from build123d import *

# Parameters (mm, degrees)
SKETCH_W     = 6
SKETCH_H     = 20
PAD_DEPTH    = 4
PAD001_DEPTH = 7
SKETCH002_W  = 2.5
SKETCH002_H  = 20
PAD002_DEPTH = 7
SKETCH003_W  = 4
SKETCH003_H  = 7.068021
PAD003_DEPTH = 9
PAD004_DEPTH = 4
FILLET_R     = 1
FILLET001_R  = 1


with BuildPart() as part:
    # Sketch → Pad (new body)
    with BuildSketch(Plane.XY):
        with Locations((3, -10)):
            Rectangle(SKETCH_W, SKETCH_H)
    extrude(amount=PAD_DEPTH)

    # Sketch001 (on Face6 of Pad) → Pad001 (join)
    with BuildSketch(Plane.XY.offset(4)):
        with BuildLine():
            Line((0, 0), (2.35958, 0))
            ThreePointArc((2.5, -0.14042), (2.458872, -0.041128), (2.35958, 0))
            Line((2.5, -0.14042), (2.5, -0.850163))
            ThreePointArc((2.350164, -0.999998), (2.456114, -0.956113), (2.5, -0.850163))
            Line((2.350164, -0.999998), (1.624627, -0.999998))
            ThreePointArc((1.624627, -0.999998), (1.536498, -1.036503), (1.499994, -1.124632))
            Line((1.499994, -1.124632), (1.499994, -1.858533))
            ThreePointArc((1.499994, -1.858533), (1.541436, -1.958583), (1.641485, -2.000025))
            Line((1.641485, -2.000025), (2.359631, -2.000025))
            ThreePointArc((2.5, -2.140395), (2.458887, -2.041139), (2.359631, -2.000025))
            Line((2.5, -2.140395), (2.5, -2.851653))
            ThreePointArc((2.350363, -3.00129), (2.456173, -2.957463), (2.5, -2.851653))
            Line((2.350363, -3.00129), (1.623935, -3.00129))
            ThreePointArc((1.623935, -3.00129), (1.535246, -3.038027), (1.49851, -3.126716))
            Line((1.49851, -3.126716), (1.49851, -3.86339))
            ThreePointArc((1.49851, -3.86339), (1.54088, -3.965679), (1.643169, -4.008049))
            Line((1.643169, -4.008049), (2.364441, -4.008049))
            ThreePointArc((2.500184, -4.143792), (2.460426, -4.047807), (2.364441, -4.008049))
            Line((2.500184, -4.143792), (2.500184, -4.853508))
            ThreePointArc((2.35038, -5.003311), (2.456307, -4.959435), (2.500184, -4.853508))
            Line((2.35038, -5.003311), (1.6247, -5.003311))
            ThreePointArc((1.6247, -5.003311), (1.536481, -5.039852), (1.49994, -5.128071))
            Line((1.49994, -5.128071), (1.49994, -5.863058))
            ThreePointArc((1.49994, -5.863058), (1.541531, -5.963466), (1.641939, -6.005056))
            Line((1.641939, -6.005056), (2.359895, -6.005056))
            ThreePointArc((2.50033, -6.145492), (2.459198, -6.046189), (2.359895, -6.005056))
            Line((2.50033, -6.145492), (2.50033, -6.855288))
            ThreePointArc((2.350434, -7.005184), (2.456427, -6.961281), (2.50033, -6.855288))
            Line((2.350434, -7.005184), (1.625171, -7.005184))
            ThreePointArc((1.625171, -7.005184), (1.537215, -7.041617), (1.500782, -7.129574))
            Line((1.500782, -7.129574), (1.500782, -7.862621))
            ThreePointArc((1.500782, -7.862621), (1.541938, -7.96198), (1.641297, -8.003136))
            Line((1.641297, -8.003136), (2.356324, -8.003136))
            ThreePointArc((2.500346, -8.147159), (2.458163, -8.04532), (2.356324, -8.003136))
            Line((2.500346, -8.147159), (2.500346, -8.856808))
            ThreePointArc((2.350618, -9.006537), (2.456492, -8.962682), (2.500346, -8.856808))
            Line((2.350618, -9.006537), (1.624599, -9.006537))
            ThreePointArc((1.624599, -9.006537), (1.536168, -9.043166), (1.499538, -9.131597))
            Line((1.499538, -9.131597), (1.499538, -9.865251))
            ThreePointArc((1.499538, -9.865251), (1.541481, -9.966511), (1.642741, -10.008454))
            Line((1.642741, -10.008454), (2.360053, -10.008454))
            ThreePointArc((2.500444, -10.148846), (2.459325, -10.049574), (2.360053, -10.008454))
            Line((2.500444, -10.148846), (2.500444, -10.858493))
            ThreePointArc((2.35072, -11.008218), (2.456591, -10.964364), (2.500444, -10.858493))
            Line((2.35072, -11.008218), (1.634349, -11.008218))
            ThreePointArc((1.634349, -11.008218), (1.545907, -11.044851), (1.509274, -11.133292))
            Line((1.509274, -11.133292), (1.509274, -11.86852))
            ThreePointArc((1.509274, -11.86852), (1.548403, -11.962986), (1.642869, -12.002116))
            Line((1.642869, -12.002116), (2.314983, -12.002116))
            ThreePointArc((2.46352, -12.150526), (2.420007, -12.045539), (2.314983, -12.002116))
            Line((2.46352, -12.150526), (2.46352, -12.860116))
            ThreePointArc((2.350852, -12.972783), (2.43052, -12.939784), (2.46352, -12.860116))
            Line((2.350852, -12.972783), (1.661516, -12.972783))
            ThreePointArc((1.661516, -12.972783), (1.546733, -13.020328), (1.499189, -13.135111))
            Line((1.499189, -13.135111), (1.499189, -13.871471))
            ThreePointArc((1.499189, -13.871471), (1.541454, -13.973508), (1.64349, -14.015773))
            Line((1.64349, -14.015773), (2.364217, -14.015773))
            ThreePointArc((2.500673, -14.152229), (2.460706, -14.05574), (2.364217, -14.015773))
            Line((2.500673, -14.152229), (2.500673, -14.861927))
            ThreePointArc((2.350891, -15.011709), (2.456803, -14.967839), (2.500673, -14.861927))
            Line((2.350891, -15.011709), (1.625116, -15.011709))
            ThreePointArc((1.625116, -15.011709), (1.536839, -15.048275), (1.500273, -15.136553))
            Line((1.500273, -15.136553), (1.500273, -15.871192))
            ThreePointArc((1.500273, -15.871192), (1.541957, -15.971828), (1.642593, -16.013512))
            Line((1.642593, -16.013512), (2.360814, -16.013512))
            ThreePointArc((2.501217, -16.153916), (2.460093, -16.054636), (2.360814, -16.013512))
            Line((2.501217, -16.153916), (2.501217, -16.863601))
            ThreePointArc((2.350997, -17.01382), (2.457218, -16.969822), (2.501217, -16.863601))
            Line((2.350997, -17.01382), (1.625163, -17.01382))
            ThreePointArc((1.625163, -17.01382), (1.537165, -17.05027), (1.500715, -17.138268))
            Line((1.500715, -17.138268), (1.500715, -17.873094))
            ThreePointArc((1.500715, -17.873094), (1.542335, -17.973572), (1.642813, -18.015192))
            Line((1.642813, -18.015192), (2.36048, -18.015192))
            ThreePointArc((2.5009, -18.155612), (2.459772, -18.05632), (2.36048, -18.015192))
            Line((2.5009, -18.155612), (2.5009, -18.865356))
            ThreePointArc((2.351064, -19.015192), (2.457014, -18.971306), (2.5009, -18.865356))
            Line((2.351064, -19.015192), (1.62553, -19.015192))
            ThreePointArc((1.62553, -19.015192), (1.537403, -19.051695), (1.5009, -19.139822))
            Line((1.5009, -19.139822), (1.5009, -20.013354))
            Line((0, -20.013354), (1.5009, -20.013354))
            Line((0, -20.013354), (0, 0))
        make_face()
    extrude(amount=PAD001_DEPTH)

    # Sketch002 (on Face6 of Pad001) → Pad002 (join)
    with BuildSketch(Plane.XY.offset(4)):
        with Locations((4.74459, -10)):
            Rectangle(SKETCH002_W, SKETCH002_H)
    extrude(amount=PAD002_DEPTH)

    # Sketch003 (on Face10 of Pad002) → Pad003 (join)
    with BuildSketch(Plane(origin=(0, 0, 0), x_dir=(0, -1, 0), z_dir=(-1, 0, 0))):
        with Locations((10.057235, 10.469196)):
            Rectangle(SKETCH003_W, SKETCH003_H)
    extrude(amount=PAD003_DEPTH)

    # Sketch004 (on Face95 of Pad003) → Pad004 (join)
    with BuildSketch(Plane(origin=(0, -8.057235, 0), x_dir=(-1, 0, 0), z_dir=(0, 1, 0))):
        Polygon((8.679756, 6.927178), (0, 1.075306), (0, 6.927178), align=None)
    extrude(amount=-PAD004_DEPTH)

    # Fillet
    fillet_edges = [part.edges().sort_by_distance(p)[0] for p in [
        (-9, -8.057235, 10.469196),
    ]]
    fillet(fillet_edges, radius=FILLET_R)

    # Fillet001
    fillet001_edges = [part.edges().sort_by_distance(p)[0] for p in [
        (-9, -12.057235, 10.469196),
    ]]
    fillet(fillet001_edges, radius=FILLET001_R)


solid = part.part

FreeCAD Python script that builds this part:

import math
import FreeCAD as App
import Part
import Sketcher


def edges_at(feature, points):
    """Names of the edges that pass closest to the given points."""
    edges = feature.Shape.Edges
    near = lambda p: min(range(len(edges)), key=lambda i: edges[i].distToShape(Part.Vertex(*p))[0])
    return sorted({f"Edge{near(p) + 1}" for p in points})

doc = App.newDocument("Part")
body = doc.addObject("PartDesign::Body", "Body")

# Sketch on XY plane
sketch1 = doc.addObject("Sketcher::SketchObject", "Sketch")
body.addObject(sketch1)
sketch1.AttachmentSupport = (doc.XY_Plane, [""])
sketch1.MapMode = "FlatFace"
sketch1.addGeometry([
    Part.LineSegment(App.Vector(0, 0, 0), App.Vector(0, -20, 0)),
    Part.LineSegment(App.Vector(0, -20, 0), App.Vector(6, -20, 0)),
    Part.LineSegment(App.Vector(6, -20, 0), App.Vector(6, 0, 0)),
    Part.LineSegment(App.Vector(6, 0, 0), App.Vector(0, 0, 0)),
], False)
sketch1.addConstraint([
    Sketcher.Constraint("Coincident", 0, 2, 1, 1),
    Sketcher.Constraint("Coincident", 1, 2, 2, 1),
    Sketcher.Constraint("Coincident", 2, 2, 3, 1),
    Sketcher.Constraint("Coincident", 3, 2, 0, 1),
    Sketcher.Constraint("Vertical", 0),
    Sketcher.Constraint("Horizontal", 1),
    Sketcher.Constraint("Vertical", 2),
    Sketcher.Constraint("Horizontal", 3),
    Sketcher.Constraint("Coincident", 3, 2, -1, 1),
    Sketcher.Constraint("DistanceX", 1, 1, 1, 2, 6.0),
    Sketcher.Constraint("DistanceY", 0, 2, 0, 1, 20.0),
])
pad1 = doc.addObject("PartDesign::Pad", "Pad")
body.addObject(pad1)
pad1.Profile = sketch1
pad1.Length = 4

# Sketch on XY plane
sketch2 = doc.addObject("Sketcher::SketchObject", "Sketch001")
body.addObject(sketch2)
sketch2.AttachmentSupport = (doc.XY_Plane, [""])
sketch2.MapMode = "FlatFace"
sketch2.AttachmentOffset = App.Placement(App.Vector(0, 0, 4), App.Rotation())
sketch2.addGeometry([
    Part.LineSegment(App.Vector(2.35958, 0, 0), App.Vector(0, 0, 0)),  # 0
    Part.LineSegment(App.Vector(0, 0, 0), App.Vector(0, -20.013354, 0)),  # 1
    Part.LineSegment(App.Vector(0, -20.013354, 0), App.Vector(1.5009, -20.013354, 0)),  # 2
    Part.LineSegment(App.Vector(1.5009, -20.013354, 0), App.Vector(1.5009, -19.139822, 0)),  # 3
    Part.ArcOfCircle(Part.Circle(App.Vector(1.625529, -19.139821, 0), App.Vector(0, 0, 1), 0.124629), math.radians(89.999558), math.radians(180.000442)),  # 4
    Part.LineSegment(App.Vector(1.62553, -19.015192, 0), App.Vector(2.351064, -19.015192, 0)),  # 5
    Part.ArcOfCircle(Part.Circle(App.Vector(2.351064, -18.865356, 0), App.Vector(0, 0, 1), 0.149836), math.radians(-89.999933), math.radians(-0.000067)),  # 6
    Part.LineSegment(App.Vector(2.5009, -18.865356, 0), App.Vector(2.5009, -18.155612, 0)),  # 7
    Part.ArcOfCircle(Part.Circle(App.Vector(2.36048, -18.155612, 0), App.Vector(0, 0, 1), 0.14042), math.radians(-0.000092), math.radians(90.000092)),  # 8
    Part.LineSegment(App.Vector(2.36048, -18.015192, 0), App.Vector(1.642813, -18.015192, 0)),  # 9
    Part.ArcOfCircle(Part.Circle(App.Vector(1.642815, -17.873092, 0), App.Vector(0, 0, 1), 0.1421), math.radians(-179.999368), math.radians(-90.000632)),  # 10
    Part.LineSegment(App.Vector(1.500715, -17.873094, 0), App.Vector(1.500715, -17.138268, 0)),  # 11
    Part.ArcOfCircle(Part.Circle(App.Vector(1.625163, -17.138268, 0), App.Vector(0, 0, 1), 0.124448), math.radians(90.000039), math.radians(179.999961)),  # 12
    Part.LineSegment(App.Vector(1.625163, -17.01382, 0), App.Vector(2.350997, -17.01382, 0)),  # 13
    Part.ArcOfCircle(Part.Circle(App.Vector(2.350997, -16.8636, 0), App.Vector(0, 0, 1), 0.15022), math.radians(-89.999895), math.radians(-0.000486)),  # 14
    Part.LineSegment(App.Vector(2.501217, -16.863601, 0), App.Vector(2.501217, -16.153916, 0)),  # 15
    Part.ArcOfCircle(Part.Circle(App.Vector(2.360811, -16.153918, 0), App.Vector(0, 0, 1), 0.140406), math.radians(0.000865), math.radians(89.998727)),  # 16
    Part.LineSegment(App.Vector(2.360814, -16.013512, 0), App.Vector(1.642593, -16.013512, 0)),  # 17
    Part.ArcOfCircle(Part.Circle(App.Vector(1.642591, -15.871194, 0), App.Vector(0, 0, 1), 0.142318), math.radians(179.999226), math.radians(270.000774)),  # 18
    Part.LineSegment(App.Vector(1.500273, -15.871192, 0), App.Vector(1.500273, -15.136553, 0)),  # 19
    Part.ArcOfCircle(Part.Circle(App.Vector(1.625117, -15.136553, 0), App.Vector(0, 0, 1), 0.124844), math.radians(90.00052), math.radians(179.999939)),  # 20
    Part.LineSegment(App.Vector(1.625116, -15.011709, 0), App.Vector(2.350891, -15.011709, 0)),  # 21
    Part.ArcOfCircle(Part.Circle(App.Vector(2.350891, -14.861927, 0), App.Vector(0, 0, 1), 0.149782), math.radians(-90.000173), math.radians(0.000173)),  # 22
    Part.LineSegment(App.Vector(2.500673, -14.861927, 0), App.Vector(2.500673, -14.152229, 0)),  # 23
    Part.ArcOfCircle(Part.Circle(App.Vector(2.364217, -14.152229, 0), App.Vector(0, 0, 1), 0.136456), math.radians(-0.000053), math.radians(90.000053)),  # 24
    Part.LineSegment(App.Vector(2.364217, -14.015773, 0), App.Vector(1.64349, -14.015773, 0)),  # 25
    Part.ArcOfCircle(Part.Circle(App.Vector(1.643491, -13.871471, 0), App.Vector(0, 0, 1), 0.144302), math.radians(179.999895), math.radians(269.999708)),  # 26
    Part.LineSegment(App.Vector(1.499189, -13.871471, 0), App.Vector(1.499189, -13.135111, 0)),  # 27
    Part.ArcOfCircle(Part.Circle(App.Vector(1.661516, -13.13511, 0), App.Vector(0, 0, 1), 0.162327), math.radians(90.000027), math.radians(180.000326)),  # 28
    Part.LineSegment(App.Vector(1.661516, -12.972783, 0), App.Vector(2.350852, -12.972783, 0)),  # 29
    Part.ArcOfCircle(Part.Circle(App.Vector(2.350853, -12.860116, 0), App.Vector(0, 0, 1), 0.112667), math.radians(-90.000336), math.radians(-0.000173)),  # 30
    Part.LineSegment(App.Vector(2.46352, -12.860116, 0), App.Vector(2.46352, -12.150526, 0)),  # 31
    Part.ArcOfCircle(Part.Circle(App.Vector(2.315111, -12.150525, 0), App.Vector(0, 0, 1), 0.148409), math.radians(-0.00037), math.radians(90.049379)),  # 32
    Part.LineSegment(App.Vector(2.314983, -12.002116, 0), App.Vector(1.642869, -12.002116, 0)),  # 33
    Part.ArcOfCircle(Part.Circle(App.Vector(1.64287, -11.86852, 0), App.Vector(0, 0, 1), 0.133596), math.radians(-179.999798), math.radians(-90.00063)),  # 34
    Part.LineSegment(App.Vector(1.509274, -11.86852, 0), App.Vector(1.509274, -11.133292, 0)),  # 35
    Part.ArcOfCircle(Part.Circle(App.Vector(1.634347, -11.133291, 0), App.Vector(0, 0, 1), 0.125073), math.radians(89.999031), math.radians(180.000511)),  # 36
    Part.LineSegment(App.Vector(1.634349, -11.008218, 0), App.Vector(2.35072, -11.008218, 0)),  # 37
    Part.ArcOfCircle(Part.Circle(App.Vector(2.350719, -10.858493, 0), App.Vector(0, 0, 1), 0.149725), math.radians(-89.999535), math.radians(-0.000082)),  # 38
    Part.LineSegment(App.Vector(2.500444, -10.858493, 0), App.Vector(2.500444, -10.148846, 0)),  # 39
    Part.ArcOfCircle(Part.Circle(App.Vector(2.360053, -10.148845, 0), App.Vector(0, 0, 1), 0.140391), math.radians(-0.000508), math.radians(90.0001)),  # 40
    Part.LineSegment(App.Vector(2.360053, -10.008454, 0), App.Vector(1.642741, -10.008454, 0)),  # 41
    Part.ArcOfCircle(Part.Circle(App.Vector(1.64274, -9.865252, 0), App.Vector(0, 0, 1), 0.143202), math.radians(179.999744), math.radians(270.000256)),  # 42
    Part.LineSegment(App.Vector(1.499538, -9.865251, 0), App.Vector(1.499538, -9.131597, 0)),  # 43
    Part.ArcOfCircle(Part.Circle(App.Vector(1.624599, -9.131598, 0), App.Vector(0, 0, 1), 0.125061), math.radians(89.999971), math.radians(179.999571)),  # 44
    Part.LineSegment(App.Vector(1.624599, -9.006537, 0), App.Vector(2.350618, -9.006537, 0)),  # 45
    Part.ArcOfCircle(Part.Circle(App.Vector(2.350617, -8.856808, 0), App.Vector(0, 0, 1), 0.149729), math.radians(-89.999759), math.radians(0.000142)),  # 46
    Part.LineSegment(App.Vector(2.500346, -8.856808, 0), App.Vector(2.500346, -8.147159, 0)),  # 47
    Part.ArcOfCircle(Part.Circle(App.Vector(2.356323, -8.147159, 0), App.Vector(0, 0, 1), 0.144023), math.radians(0.00019), math.radians(89.999412)),  # 48
    Part.LineSegment(App.Vector(2.356324, -8.003136, 0), App.Vector(1.641297, -8.003136, 0)),  # 49
    Part.ArcOfCircle(Part.Circle(App.Vector(1.641297, -7.862621, 0), App.Vector(0, 0, 1), 0.140515), math.radians(-179.999848), math.radians(-90.000152)),  # 50
    Part.LineSegment(App.Vector(1.500782, -7.862621, 0), App.Vector(1.500782, -7.129574, 0)),  # 51
    Part.ArcOfCircle(Part.Circle(App.Vector(1.625172, -7.129574, 0), App.Vector(0, 0, 1), 0.12439), math.radians(90.00048), math.radians(179.99998)),  # 52
    Part.LineSegment(App.Vector(1.625171, -7.005184, 0), App.Vector(2.350434, -7.005184, 0)),  # 53
    Part.ArcOfCircle(Part.Circle(App.Vector(2.350436, -6.85529, 0), App.Vector(0, 0, 1), 0.149894), math.radians(-90.000681), math.radians(0.000681)),  # 54
    Part.LineSegment(App.Vector(2.50033, -6.855288, 0), App.Vector(2.50033, -6.145492, 0)),  # 55
    Part.ArcOfCircle(Part.Circle(App.Vector(2.359895, -6.145491, 0), App.Vector(0, 0, 1), 0.140435), math.radians(-0.000351), math.radians(89.999943)),  # 56
    Part.LineSegment(App.Vector(2.359895, -6.005056, 0), App.Vector(1.641939, -6.005056, 0)),  # 57
    Part.ArcOfCircle(Part.Circle(App.Vector(1.641939, -5.863057, 0), App.Vector(0, 0, 1), 0.141999), math.radians(-179.999657), math.radians(-89.999939)),  # 58
    Part.LineSegment(App.Vector(1.49994, -5.863058, 0), App.Vector(1.49994, -5.128071, 0)),  # 59
    Part.ArcOfCircle(Part.Circle(App.Vector(1.624699, -5.12807, 0), App.Vector(0, 0, 1), 0.124759), math.radians(89.999439), math.radians(180.000561)),  # 60
    Part.LineSegment(App.Vector(1.6247, -5.003311, 0), App.Vector(2.35038, -5.003311, 0)),  # 61
    Part.ArcOfCircle(Part.Circle(App.Vector(2.35038, -4.853507, 0), App.Vector(0, 0, 1), 0.149804), math.radians(-90.000099), math.radians(-0.000283)),  # 62
    Part.LineSegment(App.Vector(2.500184, -4.853508, 0), App.Vector(2.500184, -4.143792, 0)),  # 63
    Part.ArcOfCircle(Part.Circle(App.Vector(2.364442, -4.143791, 0), App.Vector(0, 0, 1), 0.135742), math.radians(-0.000294), math.radians(90.000294)),  # 64
    Part.LineSegment(App.Vector(2.364441, -4.008049, 0), App.Vector(1.643169, -4.008049, 0)),  # 65
    Part.ArcOfCircle(Part.Circle(App.Vector(1.64317, -3.863389, 0), App.Vector(0, 0, 1), 0.14466), math.radians(-179.999513), math.radians(-90.000487)),  # 66
    Part.LineSegment(App.Vector(1.49851, -3.86339, 0), App.Vector(1.49851, -3.126716, 0)),  # 67
    Part.ArcOfCircle(Part.Circle(App.Vector(1.623936, -3.126716, 0), App.Vector(0, 0, 1), 0.125426), math.radians(90.000574), math.radians(179.999883)),  # 68
    Part.LineSegment(App.Vector(1.623935, -3.00129, 0), App.Vector(2.350363, -3.00129, 0)),  # 69
    Part.ArcOfCircle(Part.Circle(App.Vector(2.350365, -2.851655, 0), App.Vector(0, 0, 1), 0.149635), math.radians(-90.000866), math.radians(0.000866)),  # 70
    Part.LineSegment(App.Vector(2.5, -2.851653, 0), App.Vector(2.5, -2.140395, 0)),  # 71
    Part.ArcOfCircle(Part.Circle(App.Vector(2.35963, -2.140395, 0), App.Vector(0, 0, 1), 0.14037), math.radians(0.00011), math.radians(89.999482)),  # 72
    Part.LineSegment(App.Vector(2.359631, -2.000025, 0), App.Vector(1.641485, -2.000025, 0)),  # 73
    Part.ArcOfCircle(Part.Circle(App.Vector(1.641486, -1.858533, 0), App.Vector(0, 0, 1), 0.141492), math.radians(179.999934), math.radians(269.999661)),  # 74
    Part.LineSegment(App.Vector(1.499994, -1.858533, 0), App.Vector(1.499994, -1.124632, 0)),  # 75
    Part.ArcOfCircle(Part.Circle(App.Vector(1.624628, -1.124632, 0), App.Vector(0, 0, 1), 0.124634), math.radians(90.000533), math.radians(179.999927)),  # 76
    Part.LineSegment(App.Vector(1.624627, -0.999998, 0), App.Vector(2.350164, -0.999998, 0)),  # 77
    Part.ArcOfCircle(Part.Circle(App.Vector(2.350166, -0.850164, 0), App.Vector(0, 0, 1), 0.149834), math.radians(-90.000585), math.radians(0.000203)),  # 78
    Part.LineSegment(App.Vector(2.5, -0.850163, 0), App.Vector(2.5, -0.14042, 0)),  # 79
    Part.ArcOfCircle(Part.Circle(App.Vector(2.35958, -0.14042, 0), App.Vector(0, 0, 1), 0.14042), math.radians(-0.000092), math.radians(90.000092)),  # 80
], False)
sketch2.addConstraint([
    Sketcher.Constraint("Coincident", 0, 2, 1, 1),
    Sketcher.Constraint("Coincident", 1, 2, 2, 1),
    Sketcher.Constraint("Coincident", 2, 2, 3, 1),
    Sketcher.Constraint("Coincident", 3, 2, 4, 2),
    Sketcher.Constraint("Coincident", 4, 1, 5, 1),
    Sketcher.Constraint("Tangent", 5, 2, 6, 1),
    Sketcher.Constraint("Tangent", 6, 2, 7, 1),
    Sketcher.Constraint("Tangent", 7, 2, 8, 1),
    Sketcher.Constraint("Tangent", 8, 2, 9, 1),
    Sketcher.Constraint("Coincident", 9, 2, 10, 2),
    Sketcher.Constraint("Coincident", 10, 1, 11, 1),
    Sketcher.Constraint("Tangent", 11, 2, 12, 2),
    Sketcher.Constraint("Tangent", 12, 1, 13, 1),
    Sketcher.Constraint("Tangent", 13, 2, 14, 1),
    Sketcher.Constraint("Coincident", 14, 2, 15, 1),
    Sketcher.Constraint("Coincident", 15, 2, 16, 1),
    Sketcher.Constraint("Coincident", 16, 2, 17, 1),
    Sketcher.Constraint("Coincident", 17, 2, 18, 2),
    Sketcher.Constraint("Coincident", 18, 1, 19, 1),
    Sketcher.Constraint("Tangent", 19, 2, 20, 2),
    Sketcher.Constraint("Coincident", 20, 1, 21, 1),
    Sketcher.Constraint("Coincident", 21, 2, 22, 1),
    Sketcher.Constraint("Coincident", 22, 2, 23, 1),
    Sketcher.Constraint("Tangent", 23, 2, 24, 1),
    Sketcher.Constraint("Tangent", 24, 2, 25, 1),
    Sketcher.Constraint("Coincident", 25, 2, 26, 2),
    Sketcher.Constraint("Tangent", 26, 1, 27, 1),
    Sketcher.Constraint("Coincident", 27, 2, 28, 2),
    Sketcher.Constraint("Tangent", 28, 1, 29, 1),
    Sketcher.Constraint("Coincident", 29, 2, 30, 1),
    Sketcher.Constraint("Coincident", 30, 2, 31, 1),
    Sketcher.Constraint("Coincident", 31, 2, 32, 1),
    Sketcher.Constraint("Coincident", 32, 2, 33, 1),
    Sketcher.Constraint("Coincident", 33, 2, 34, 2),
    Sketcher.Constraint("Coincident", 34, 1, 35, 1),
    Sketcher.Constraint("Coincident", 35, 2, 36, 2),
    Sketcher.Constraint("Coincident", 36, 1, 37, 1),
    Sketcher.Constraint("Coincident", 37, 2, 38, 1),
    Sketcher.Constraint("Tangent", 38, 2, 39, 1),
    Sketcher.Constraint("Coincident", 39, 2, 40, 1),
    Sketcher.Constraint("Tangent", 40, 2, 41, 1),
    Sketcher.Constraint("Coincident", 41, 2, 42, 2),
    Sketcher.Constraint("Coincident", 42, 1, 43, 1),
    Sketcher.Constraint("Coincident", 43, 2, 44, 2),
    Sketcher.Constraint("Tangent", 44, 1, 45, 1),
    Sketcher.Constraint("Coincident", 45, 2, 46, 1),
    Sketcher.Constraint("Coincident", 46, 2, 47, 1),
    Sketcher.Constraint("Coincident", 47, 2, 48, 1),
    Sketcher.Constraint("Coincident", 48, 2, 49, 1),
    Sketcher.Constraint("Coincident", 49, 2, 50, 2),
    Sketcher.Constraint("Coincident", 50, 1, 51, 1),
    Sketcher.Constraint("Tangent", 51, 2, 52, 2),
    Sketcher.Constraint("Coincident", 52, 1, 53, 1),
    Sketcher.Constraint("Coincident", 53, 2, 54, 1),
    Sketcher.Constraint("Coincident", 54, 2, 55, 1),
    Sketcher.Constraint("Coincident", 55, 2, 56, 1),
    Sketcher.Constraint("Tangent", 56, 2, 57, 1),
    Sketcher.Constraint("Tangent", 57, 2, 58, 2),
    Sketcher.Constraint("Coincident", 58, 1, 59, 1),
    Sketcher.Constraint("Coincident", 59, 2, 60, 2),
    Sketcher.Constraint("Coincident", 60, 1, 61, 1),
    Sketcher.Constraint("Tangent", 61, 2, 62, 1),
    Sketcher.Constraint("Coincident", 62, 2, 63, 1),
    Sketcher.Constraint("Coincident", 63, 2, 64, 1),
    Sketcher.Constraint("Coincident", 64, 2, 65, 1),
    Sketcher.Constraint("Coincident", 65, 2, 66, 2),
    Sketcher.Constraint("Coincident", 66, 1, 67, 1),
    Sketcher.Constraint("Coincident", 67, 2, 68, 2),
    Sketcher.Constraint("Coincident", 68, 1, 69, 1),
    Sketcher.Constraint("Coincident", 69, 2, 70, 1),
    Sketcher.Constraint("Coincident", 70, 2, 71, 1),
    Sketcher.Constraint("Tangent", 71, 2, 72, 1),
    Sketcher.Constraint("Coincident", 72, 2, 73, 1),
    Sketcher.Constraint("Coincident", 73, 2, 74, 2),
    Sketcher.Constraint("Tangent", 74, 1, 75, 1),
    Sketcher.Constraint("Tangent", 75, 2, 76, 2),
    Sketcher.Constraint("Coincident", 76, 1, 77, 1),
    Sketcher.Constraint("Coincident", 77, 2, 78, 1),
    Sketcher.Constraint("Coincident", 78, 2, 79, 1),
    Sketcher.Constraint("Tangent", 79, 2, 80, 1),
    Sketcher.Constraint("Tangent", 80, 2, 0, 1),
    Sketcher.Constraint("Horizontal", 0),
    Sketcher.Constraint("Vertical", 1),
    Sketcher.Constraint("Horizontal", 2),
    Sketcher.Constraint("Vertical", 3),
    Sketcher.Constraint("Horizontal", 5),
    Sketcher.Constraint("Vertical", 7),
    Sketcher.Constraint("Horizontal", 9),
    Sketcher.Constraint("Vertical", 11),
    Sketcher.Constraint("Horizontal", 13),
    Sketcher.Constraint("Vertical", 15),
    Sketcher.Constraint("Horizontal", 17),
    Sketcher.Constraint("Vertical", 19),
    Sketcher.Constraint("Horizontal", 21),
    Sketcher.Constraint("Vertical", 23),
    Sketcher.Constraint("Horizontal", 25),
    Sketcher.Constraint("Vertical", 27),
    Sketcher.Constraint("Horizontal", 29),
    Sketcher.Constraint("Vertical", 31),
    Sketcher.Constraint("Horizontal", 33),
    Sketcher.Constraint("Vertical", 35),
    Sketcher.Constraint("Horizontal", 37),
    Sketcher.Constraint("Vertical", 39),
    Sketcher.Constraint("Horizontal", 41),
    Sketcher.Constraint("Vertical", 43),
    Sketcher.Constraint("Horizontal", 45),
    Sketcher.Constraint("Vertical", 47),
    Sketcher.Constraint("Horizontal", 49),
    Sketcher.Constraint("Vertical", 51),
    Sketcher.Constraint("Horizontal", 53),
    Sketcher.Constraint("Vertical", 55),
    Sketcher.Constraint("Horizontal", 57),
    Sketcher.Constraint("Vertical", 59),
    Sketcher.Constraint("Horizontal", 61),
    Sketcher.Constraint("Vertical", 63),
    Sketcher.Constraint("Horizontal", 65),
    Sketcher.Constraint("Vertical", 67),
    Sketcher.Constraint("Horizontal", 69),
    Sketcher.Constraint("Vertical", 71),
    Sketcher.Constraint("Horizontal", 73),
    Sketcher.Constraint("Vertical", 75),
    Sketcher.Constraint("Horizontal", 77),
    Sketcher.Constraint("Vertical", 79),
    Sketcher.Constraint("Coincident", 0, 2, -1, 1),
    Sketcher.Constraint("Equal", 6, 78),
    Sketcher.Constraint("Equal", 8, 80),
    Sketcher.Constraint("Horizontal", 4, 3, 3, 2),
    Sketcher.Constraint("Horizontal", 28, 3, 27, 2),
    Sketcher.Constraint("Horizontal", 32, 3, 31, 2),
    Sketcher.Constraint("Horizontal", 36, 3, 35, 2),
    Sketcher.Constraint("Horizontal", 40, 3, 39, 2),
    Sketcher.Constraint("Horizontal", 44, 3, 43, 2),
    Sketcher.Constraint("Horizontal", 48, 3, 47, 2),
    Sketcher.Constraint("Horizontal", 56, 3, 55, 2),
    Sketcher.Constraint("Horizontal", 60, 3, 59, 2),
    Sketcher.Constraint("Horizontal", 64, 3, 63, 2),
    Sketcher.Constraint("Horizontal", 68, 3, 67, 2),
    Sketcher.Constraint("Vertical", 10, 3, 9, 2),
    Sketcher.Constraint("Vertical", 18, 3, 17, 2),
    Sketcher.Constraint("Vertical", 22, 3, 21, 2),
    Sketcher.Constraint("Vertical", 26, 3, 25, 2),
    Sketcher.Constraint("Vertical", 30, 3, 29, 2),
    Sketcher.Constraint("Vertical", 34, 3, 33, 2),
    Sketcher.Constraint("Vertical", 38, 3, 37, 2),
    Sketcher.Constraint("Vertical", 42, 3, 41, 2),
    Sketcher.Constraint("Vertical", 46, 3, 45, 2),
    Sketcher.Constraint("Vertical", 50, 3, 49, 2),
    Sketcher.Constraint("Vertical", 54, 3, 53, 2),
    Sketcher.Constraint("Vertical", 66, 3, 65, 2),
    Sketcher.Constraint("Vertical", 74, 3, 73, 2),
    Sketcher.Constraint("Vertical", 78, 3, 77, 2),
    Sketcher.Constraint("Vertical", 71, 2, 78, 2),
    Sketcher.Constraint("Equal", 7, 79),
    Sketcher.Constraint("DistanceY", 76, 1, -1, 1, 0.999998),
    Sketcher.Constraint("Radius", 58, 0.141999),
    Sketcher.Constraint("DistanceX", -1, 1, 70, 2, 2.5),
    Sketcher.Constraint("Radius", 10, 0.1421),
    Sketcher.Constraint("Radius", 26, 0.144302),
    Sketcher.Constraint("Radius", 4, 0.124629),
    Sketcher.Constraint("Radius", 8, 0.14042),
    Sketcher.Constraint("Radius", 12, 0.124448),
    Sketcher.Constraint("Radius", 14, 0.15022),
    Sketcher.Constraint("Radius", 18, 0.142318),
    Sketcher.Constraint("Radius", 22, 0.149782),
    Sketcher.Constraint("Radius", 32, 0.148409),
    Sketcher.Constraint("Radius", 40, 0.140391),
    Sketcher.Constraint("Radius", 44, 0.125061),
    Sketcher.Constraint("Radius", 46, 0.149729),
    Sketcher.Constraint("Radius", 52, 0.12439),
    Sketcher.Constraint("Radius", 60, 0.124759),
    Sketcher.Constraint("Radius", 66, 0.14466),
    Sketcher.Constraint("Radius", 72, 0.14037),
    Sketcher.Constraint("Radius", 74, 0.141492),
    Sketcher.Constraint("DistanceX", 2, 1, 2, 2, 1.5009),
    Sketcher.Constraint("DistanceY", 75, 1, 75, 2, 0.733901),
    Sketcher.Constraint("Radius", 6, 0.149836),
    Sketcher.Constraint("Radius", 16, 0.140406),
    Sketcher.Constraint("Radius", 20, 0.124844),
    Sketcher.Constraint("Radius", 24, 0.136456),
    Sketcher.Constraint("Radius", 28, 0.162327),
    Sketcher.Constraint("Radius", 30, 0.112667),
    Sketcher.Constraint("Radius", 34, 0.133596),
    Sketcher.Constraint("Radius", 36, 0.125073),
    Sketcher.Constraint("Radius", 38, 0.149725),
    Sketcher.Constraint("Radius", 42, 0.143202),
    Sketcher.Constraint("Radius", 48, 0.144023),
    Sketcher.Constraint("Radius", 50, 0.140515),
    Sketcher.Constraint("Radius", 54, 0.149894),
    Sketcher.Constraint("Radius", 56, 0.140435),
    Sketcher.Constraint("Radius", 62, 0.149804),
    Sketcher.Constraint("Radius", 64, 0.135742),
    Sketcher.Constraint("Radius", 68, 0.125426),
    Sketcher.Constraint("Radius", 70, 0.149635),
    Sketcher.Constraint("Radius", 76, 0.124634),
    Sketcher.Constraint("DistanceX", 17, 2, 17, 1, 0.718221),
    Sketcher.Constraint("DistanceX", 37, 1, 37, 2, 0.716371),
    Sketcher.Constraint("DistanceX", 45, 1, 45, 2, 0.726019),
    Sketcher.Constraint("DistanceX", 61, 1, 61, 2, 0.72568),
    Sketcher.Constraint("DistanceX", 65, 2, 65, 1, 0.721272),
    Sketcher.Constraint("DistanceX", 69, 1, 69, 2, 0.726428),
    Sketcher.Constraint("DistanceY", 19, 1, 19, 2, 0.734639),
    Sketcher.Constraint("DistanceY", 27, 1, 27, 2, 0.73636),
    Sketcher.Constraint("DistanceY", 31, 1, 31, 2, 0.70959),
    Sketcher.Constraint("DistanceY", 47, 1, 47, 2, 0.709649),
    Sketcher.Constraint("DistanceY", 71, 1, 71, 2, 0.711258),
    Sketcher.Constraint("DistanceY", 14, 3, -1, 1, 16.8636),
    Sketcher.Constraint("DistanceX", -1, 1, 44, 3, 1.624599),
    Sketcher.Constraint("DistanceX", -1, 1, 60, 3, 1.624699),
    Sketcher.Constraint("DistanceX", -1, 1, 6, 2, 2.5009),
    Sketcher.Constraint("DistanceY", 14, 2, -1, 1, 16.863601),
    Sketcher.Constraint("DistanceX", -1, 1, 60, 1, 1.6247),
    Sketcher.Constraint("DistanceX", 5, 1, 5, 2, 0.725534),
    Sketcher.Constraint("DistanceX", 9, 2, 9, 1, 0.717667),
    Sketcher.Constraint("DistanceX", 13, 1, 13, 2, 0.725834),
    Sketcher.Constraint("DistanceX", 21, 1, 21, 2, 0.725775),
    Sketcher.Constraint("DistanceX", 25, 2, 25, 1, 0.720727),
    Sketcher.Constraint("DistanceX", 29, 1, 29, 2, 0.689336),
    Sketcher.Constraint("DistanceX", 33, 2, 33, 1, 0.672114),
    Sketcher.Constraint("DistanceX", 41, 2, 41, 1, 0.717312),
    Sketcher.Constraint("DistanceX", 49, 2, 49, 1, 0.715027),
    Sketcher.Constraint("DistanceX", 53, 1, 53, 2, 0.725263),
    Sketcher.Constraint("DistanceX", 57, 2, 57, 1, 0.717956),
    Sketcher.Constraint("DistanceX", 73, 2, 73, 1, 0.718146),
    Sketcher.Constraint("DistanceX", 77, 1, 77, 2, 0.725537),
    Sketcher.Constraint("DistanceY", 1, 2, 1, 1, 20.013354),
    Sketcher.Constraint("DistanceY", 3, 1, 3, 2, 0.873532),
    Sketcher.Constraint("DistanceY", 7, 1, 7, 2, 0.709744),
    Sketcher.Constraint("DistanceY", 11, 1, 11, 2, 0.734826),
    Sketcher.Constraint("DistanceY", 15, 1, 15, 2, 0.709685),
    Sketcher.Constraint("DistanceY", 23, 1, 23, 2, 0.709698),
    Sketcher.Constraint("DistanceY", 35, 1, 35, 2, 0.735228),
    Sketcher.Constraint("DistanceY", 39, 1, 39, 2, 0.709647),
    Sketcher.Constraint("DistanceY", 43, 1, 43, 2, 0.733654),
    Sketcher.Constraint("DistanceY", 51, 1, 51, 2, 0.733047),
    Sketcher.Constraint("DistanceY", 55, 1, 55, 2, 0.709796),
    Sketcher.Constraint("DistanceY", 59, 1, 59, 2, 0.734987),
    Sketcher.Constraint("DistanceY", 63, 1, 63, 2, 0.709716),
    Sketcher.Constraint("DistanceY", 67, 1, 67, 2, 0.736674),
    Sketcher.Constraint("DistanceY", 16, 3, -1, 1, 16.153918),
    Sketcher.Constraint("DistanceX", -1, 1, 18, 3, 1.642591),
    Sketcher.Constraint("DistanceX", -1, 1, 22, 3, 2.350891),
    Sketcher.Constraint("DistanceY", 24, 3, -1, 1, 14.152229),
    Sketcher.Constraint("DistanceX", -1, 1, 34, 3, 1.64287),
    Sketcher.Constraint("DistanceY", 34, 3, -1, 1, 11.86852),
    Sketcher.Constraint("DistanceY", 36, 3, -1, 1, 11.133291),
    Sketcher.Constraint("DistanceY", 46, 3, -1, 1, 8.856808),
    Sketcher.Constraint("DistanceY", 48, 3, -1, 1, 8.147159),
    Sketcher.Constraint("DistanceY", 54, 3, -1, 1, 6.85529),
    Sketcher.Constraint("DistanceY", 56, 3, -1, 1, 6.145491),
    Sketcher.Constraint("DistanceY", 60, 3, -1, 1, 5.12807),
    Sketcher.Constraint("DistanceY", 64, 3, -1, 1, 4.143791),
    Sketcher.Constraint("DistanceX", -1, 1, 66, 3, 1.64317),
    Sketcher.Constraint("DistanceX", -1, 1, 76, 3, 1.624628),
    Sketcher.Constraint("DistanceY", 20, 1, -1, 1, 15.011709),
    Sketcher.Constraint("DistanceY", 66, 1, -1, 1, 3.86339),
    Sketcher.Constraint("DistanceX", -1, 1, 50, 3, 1.641297),
    Sketcher.Constraint("DistanceX", -1, 1, 68, 1, 1.623935),
])
pad2 = doc.addObject("PartDesign::Pad", "Pad001")
body.addObject(pad2)
pad2.Profile = sketch2
pad2.Length = 7

# Sketch on XY plane
sketch3 = doc.addObject("Sketcher::SketchObject", "Sketch002")
body.addObject(sketch3)
sketch3.AttachmentSupport = (doc.XY_Plane, [""])
sketch3.MapMode = "FlatFace"
sketch3.AttachmentOffset = App.Placement(App.Vector(0, 0, 4), App.Rotation())
sketch3.addGeometry([
    Part.LineSegment(App.Vector(3.49459, 0, 0), App.Vector(3.49459, -20, 0)),
    Part.LineSegment(App.Vector(3.49459, -20, 0), App.Vector(5.99459, -20, 0)),
    Part.LineSegment(App.Vector(5.99459, -20, 0), App.Vector(5.99459, 0, 0)),
    Part.LineSegment(App.Vector(5.99459, 0, 0), App.Vector(3.49459, 0, 0)),
], False)
sketch3.addConstraint([
    Sketcher.Constraint("Coincident", 0, 2, 1, 1),
    Sketcher.Constraint("Coincident", 1, 2, 2, 1),
    Sketcher.Constraint("Coincident", 2, 2, 3, 1),
    Sketcher.Constraint("Coincident", 3, 2, 0, 1),
    Sketcher.Constraint("Vertical", 0),
    Sketcher.Constraint("Horizontal", 1),
    Sketcher.Constraint("Vertical", 2),
    Sketcher.Constraint("Horizontal", 3),
    Sketcher.Constraint("PointOnObject", 2, 2, -1),
    Sketcher.Constraint("DistanceY", 0, 2, 0, 1, 20.0),
    Sketcher.Constraint("DistanceX", 1, 1, 1, 2, 2.5),
    Sketcher.Constraint("DistanceX", -1, 1, 0, 2, 3.49459),
])
pad3 = doc.addObject("PartDesign::Pad", "Pad002")
body.addObject(pad3)
pad3.Profile = sketch3
pad3.Length = 7

# Sketch on YZ plane
sketch4 = doc.addObject("Sketcher::SketchObject", "Sketch003")
body.addObject(sketch4)
sketch4.AttachmentSupport = (doc.YZ_Plane, [""])
sketch4.MapMode = "FlatFace"
sketch4.addGeometry([
    Part.LineSegment(App.Vector(-8.057235, 14.003206, 0), App.Vector(-8.057235, 6.935186, 0)),
    Part.LineSegment(App.Vector(-8.057235, 6.935186, 0), App.Vector(-12.057235, 6.935186, 0)),
    Part.LineSegment(App.Vector(-12.057235, 6.935186, 0), App.Vector(-12.057235, 14.003206, 0)),
    Part.LineSegment(App.Vector(-12.057235, 14.003206, 0), App.Vector(-8.057235, 14.003206, 0)),
], False)
sketch4.addConstraint([
    Sketcher.Constraint("Coincident", 0, 2, 1, 1),
    Sketcher.Constraint("Coincident", 1, 2, 2, 1),
    Sketcher.Constraint("Coincident", 2, 2, 3, 1),
    Sketcher.Constraint("Coincident", 3, 2, 0, 1),
    Sketcher.Constraint("Vertical", 0),
    Sketcher.Constraint("Horizontal", 1),
    Sketcher.Constraint("Vertical", 2),
    Sketcher.Constraint("Horizontal", 3),
    Sketcher.Constraint("DistanceX", 1, 2, 1, 1, 4.0),
    Sketcher.Constraint("DistanceY", 0, 2, 0, 1, 7.068021),
    Sketcher.Constraint("DistanceX", 0, 2, -1, 1, 8.057235),
    Sketcher.Constraint("DistanceY", -1, 1, 0, 2, 6.935186),
])
pad4 = doc.addObject("PartDesign::Pad", "Pad003")
body.addObject(pad4)
pad4.Profile = sketch4
pad4.Length = 9
pad4.Reversed = True

# Sketch on XZ plane
sketch5 = doc.addObject("Sketcher::SketchObject", "Sketch004")
body.addObject(sketch5)
sketch5.AttachmentSupport = (doc.XZ_Plane, [""])
sketch5.MapMode = "FlatFace"
sketch5.AttachmentOffset = App.Placement(App.Vector(0, 0, 8.057235), App.Rotation())
sketch5.addGeometry([
    Part.LineSegment(App.Vector(0, 1.075306, 0), App.Vector(-8.679756, 6.927178, 0)),
    Part.LineSegment(App.Vector(-8.679756, 6.927178, 0), App.Vector(0, 6.927178, 0)),
    Part.LineSegment(App.Vector(0, 6.927178, 0), App.Vector(0, 1.075306, 0)),
], False)
sketch5.addConstraint([
    Sketcher.Constraint("Coincident", 0, 2, 1, 1),
    Sketcher.Constraint("Coincident", 1, 2, 2, 1),
    Sketcher.Constraint("Coincident", 2, 2, 0, 1),
    Sketcher.Constraint("Horizontal", 1),
    Sketcher.Constraint("Vertical", 2),
    Sketcher.Constraint("PointOnObject", 1, 2, -2),
    Sketcher.Constraint("DistanceY", 2, 2, 2, 1, 5.851872),
    Sketcher.Constraint("Distance", 0, 10.468169),
    Sketcher.Constraint("DistanceY", -1, 1, 0, 2, 6.927178),
])
pad5 = doc.addObject("PartDesign::Pad", "Pad004")
body.addObject(pad5)
pad5.Profile = sketch5
pad5.Length = 4
doc.recompute()

fillet = doc.addObject("PartDesign::Fillet", "Fillet")
body.addObject(fillet)
fillet.Base = (pad5, edges_at(pad5, [(-9, -8.057, 10.469)]))
fillet.Radius = 1
doc.recompute()

fillet2 = doc.addObject("PartDesign::Fillet", "Fillet001")
body.addObject(fillet2)
fillet2.Base = (fillet, edges_at(fillet, [(-9, -12.057, 10.469)]))
fillet2.Radius = 1

doc.recompute()
